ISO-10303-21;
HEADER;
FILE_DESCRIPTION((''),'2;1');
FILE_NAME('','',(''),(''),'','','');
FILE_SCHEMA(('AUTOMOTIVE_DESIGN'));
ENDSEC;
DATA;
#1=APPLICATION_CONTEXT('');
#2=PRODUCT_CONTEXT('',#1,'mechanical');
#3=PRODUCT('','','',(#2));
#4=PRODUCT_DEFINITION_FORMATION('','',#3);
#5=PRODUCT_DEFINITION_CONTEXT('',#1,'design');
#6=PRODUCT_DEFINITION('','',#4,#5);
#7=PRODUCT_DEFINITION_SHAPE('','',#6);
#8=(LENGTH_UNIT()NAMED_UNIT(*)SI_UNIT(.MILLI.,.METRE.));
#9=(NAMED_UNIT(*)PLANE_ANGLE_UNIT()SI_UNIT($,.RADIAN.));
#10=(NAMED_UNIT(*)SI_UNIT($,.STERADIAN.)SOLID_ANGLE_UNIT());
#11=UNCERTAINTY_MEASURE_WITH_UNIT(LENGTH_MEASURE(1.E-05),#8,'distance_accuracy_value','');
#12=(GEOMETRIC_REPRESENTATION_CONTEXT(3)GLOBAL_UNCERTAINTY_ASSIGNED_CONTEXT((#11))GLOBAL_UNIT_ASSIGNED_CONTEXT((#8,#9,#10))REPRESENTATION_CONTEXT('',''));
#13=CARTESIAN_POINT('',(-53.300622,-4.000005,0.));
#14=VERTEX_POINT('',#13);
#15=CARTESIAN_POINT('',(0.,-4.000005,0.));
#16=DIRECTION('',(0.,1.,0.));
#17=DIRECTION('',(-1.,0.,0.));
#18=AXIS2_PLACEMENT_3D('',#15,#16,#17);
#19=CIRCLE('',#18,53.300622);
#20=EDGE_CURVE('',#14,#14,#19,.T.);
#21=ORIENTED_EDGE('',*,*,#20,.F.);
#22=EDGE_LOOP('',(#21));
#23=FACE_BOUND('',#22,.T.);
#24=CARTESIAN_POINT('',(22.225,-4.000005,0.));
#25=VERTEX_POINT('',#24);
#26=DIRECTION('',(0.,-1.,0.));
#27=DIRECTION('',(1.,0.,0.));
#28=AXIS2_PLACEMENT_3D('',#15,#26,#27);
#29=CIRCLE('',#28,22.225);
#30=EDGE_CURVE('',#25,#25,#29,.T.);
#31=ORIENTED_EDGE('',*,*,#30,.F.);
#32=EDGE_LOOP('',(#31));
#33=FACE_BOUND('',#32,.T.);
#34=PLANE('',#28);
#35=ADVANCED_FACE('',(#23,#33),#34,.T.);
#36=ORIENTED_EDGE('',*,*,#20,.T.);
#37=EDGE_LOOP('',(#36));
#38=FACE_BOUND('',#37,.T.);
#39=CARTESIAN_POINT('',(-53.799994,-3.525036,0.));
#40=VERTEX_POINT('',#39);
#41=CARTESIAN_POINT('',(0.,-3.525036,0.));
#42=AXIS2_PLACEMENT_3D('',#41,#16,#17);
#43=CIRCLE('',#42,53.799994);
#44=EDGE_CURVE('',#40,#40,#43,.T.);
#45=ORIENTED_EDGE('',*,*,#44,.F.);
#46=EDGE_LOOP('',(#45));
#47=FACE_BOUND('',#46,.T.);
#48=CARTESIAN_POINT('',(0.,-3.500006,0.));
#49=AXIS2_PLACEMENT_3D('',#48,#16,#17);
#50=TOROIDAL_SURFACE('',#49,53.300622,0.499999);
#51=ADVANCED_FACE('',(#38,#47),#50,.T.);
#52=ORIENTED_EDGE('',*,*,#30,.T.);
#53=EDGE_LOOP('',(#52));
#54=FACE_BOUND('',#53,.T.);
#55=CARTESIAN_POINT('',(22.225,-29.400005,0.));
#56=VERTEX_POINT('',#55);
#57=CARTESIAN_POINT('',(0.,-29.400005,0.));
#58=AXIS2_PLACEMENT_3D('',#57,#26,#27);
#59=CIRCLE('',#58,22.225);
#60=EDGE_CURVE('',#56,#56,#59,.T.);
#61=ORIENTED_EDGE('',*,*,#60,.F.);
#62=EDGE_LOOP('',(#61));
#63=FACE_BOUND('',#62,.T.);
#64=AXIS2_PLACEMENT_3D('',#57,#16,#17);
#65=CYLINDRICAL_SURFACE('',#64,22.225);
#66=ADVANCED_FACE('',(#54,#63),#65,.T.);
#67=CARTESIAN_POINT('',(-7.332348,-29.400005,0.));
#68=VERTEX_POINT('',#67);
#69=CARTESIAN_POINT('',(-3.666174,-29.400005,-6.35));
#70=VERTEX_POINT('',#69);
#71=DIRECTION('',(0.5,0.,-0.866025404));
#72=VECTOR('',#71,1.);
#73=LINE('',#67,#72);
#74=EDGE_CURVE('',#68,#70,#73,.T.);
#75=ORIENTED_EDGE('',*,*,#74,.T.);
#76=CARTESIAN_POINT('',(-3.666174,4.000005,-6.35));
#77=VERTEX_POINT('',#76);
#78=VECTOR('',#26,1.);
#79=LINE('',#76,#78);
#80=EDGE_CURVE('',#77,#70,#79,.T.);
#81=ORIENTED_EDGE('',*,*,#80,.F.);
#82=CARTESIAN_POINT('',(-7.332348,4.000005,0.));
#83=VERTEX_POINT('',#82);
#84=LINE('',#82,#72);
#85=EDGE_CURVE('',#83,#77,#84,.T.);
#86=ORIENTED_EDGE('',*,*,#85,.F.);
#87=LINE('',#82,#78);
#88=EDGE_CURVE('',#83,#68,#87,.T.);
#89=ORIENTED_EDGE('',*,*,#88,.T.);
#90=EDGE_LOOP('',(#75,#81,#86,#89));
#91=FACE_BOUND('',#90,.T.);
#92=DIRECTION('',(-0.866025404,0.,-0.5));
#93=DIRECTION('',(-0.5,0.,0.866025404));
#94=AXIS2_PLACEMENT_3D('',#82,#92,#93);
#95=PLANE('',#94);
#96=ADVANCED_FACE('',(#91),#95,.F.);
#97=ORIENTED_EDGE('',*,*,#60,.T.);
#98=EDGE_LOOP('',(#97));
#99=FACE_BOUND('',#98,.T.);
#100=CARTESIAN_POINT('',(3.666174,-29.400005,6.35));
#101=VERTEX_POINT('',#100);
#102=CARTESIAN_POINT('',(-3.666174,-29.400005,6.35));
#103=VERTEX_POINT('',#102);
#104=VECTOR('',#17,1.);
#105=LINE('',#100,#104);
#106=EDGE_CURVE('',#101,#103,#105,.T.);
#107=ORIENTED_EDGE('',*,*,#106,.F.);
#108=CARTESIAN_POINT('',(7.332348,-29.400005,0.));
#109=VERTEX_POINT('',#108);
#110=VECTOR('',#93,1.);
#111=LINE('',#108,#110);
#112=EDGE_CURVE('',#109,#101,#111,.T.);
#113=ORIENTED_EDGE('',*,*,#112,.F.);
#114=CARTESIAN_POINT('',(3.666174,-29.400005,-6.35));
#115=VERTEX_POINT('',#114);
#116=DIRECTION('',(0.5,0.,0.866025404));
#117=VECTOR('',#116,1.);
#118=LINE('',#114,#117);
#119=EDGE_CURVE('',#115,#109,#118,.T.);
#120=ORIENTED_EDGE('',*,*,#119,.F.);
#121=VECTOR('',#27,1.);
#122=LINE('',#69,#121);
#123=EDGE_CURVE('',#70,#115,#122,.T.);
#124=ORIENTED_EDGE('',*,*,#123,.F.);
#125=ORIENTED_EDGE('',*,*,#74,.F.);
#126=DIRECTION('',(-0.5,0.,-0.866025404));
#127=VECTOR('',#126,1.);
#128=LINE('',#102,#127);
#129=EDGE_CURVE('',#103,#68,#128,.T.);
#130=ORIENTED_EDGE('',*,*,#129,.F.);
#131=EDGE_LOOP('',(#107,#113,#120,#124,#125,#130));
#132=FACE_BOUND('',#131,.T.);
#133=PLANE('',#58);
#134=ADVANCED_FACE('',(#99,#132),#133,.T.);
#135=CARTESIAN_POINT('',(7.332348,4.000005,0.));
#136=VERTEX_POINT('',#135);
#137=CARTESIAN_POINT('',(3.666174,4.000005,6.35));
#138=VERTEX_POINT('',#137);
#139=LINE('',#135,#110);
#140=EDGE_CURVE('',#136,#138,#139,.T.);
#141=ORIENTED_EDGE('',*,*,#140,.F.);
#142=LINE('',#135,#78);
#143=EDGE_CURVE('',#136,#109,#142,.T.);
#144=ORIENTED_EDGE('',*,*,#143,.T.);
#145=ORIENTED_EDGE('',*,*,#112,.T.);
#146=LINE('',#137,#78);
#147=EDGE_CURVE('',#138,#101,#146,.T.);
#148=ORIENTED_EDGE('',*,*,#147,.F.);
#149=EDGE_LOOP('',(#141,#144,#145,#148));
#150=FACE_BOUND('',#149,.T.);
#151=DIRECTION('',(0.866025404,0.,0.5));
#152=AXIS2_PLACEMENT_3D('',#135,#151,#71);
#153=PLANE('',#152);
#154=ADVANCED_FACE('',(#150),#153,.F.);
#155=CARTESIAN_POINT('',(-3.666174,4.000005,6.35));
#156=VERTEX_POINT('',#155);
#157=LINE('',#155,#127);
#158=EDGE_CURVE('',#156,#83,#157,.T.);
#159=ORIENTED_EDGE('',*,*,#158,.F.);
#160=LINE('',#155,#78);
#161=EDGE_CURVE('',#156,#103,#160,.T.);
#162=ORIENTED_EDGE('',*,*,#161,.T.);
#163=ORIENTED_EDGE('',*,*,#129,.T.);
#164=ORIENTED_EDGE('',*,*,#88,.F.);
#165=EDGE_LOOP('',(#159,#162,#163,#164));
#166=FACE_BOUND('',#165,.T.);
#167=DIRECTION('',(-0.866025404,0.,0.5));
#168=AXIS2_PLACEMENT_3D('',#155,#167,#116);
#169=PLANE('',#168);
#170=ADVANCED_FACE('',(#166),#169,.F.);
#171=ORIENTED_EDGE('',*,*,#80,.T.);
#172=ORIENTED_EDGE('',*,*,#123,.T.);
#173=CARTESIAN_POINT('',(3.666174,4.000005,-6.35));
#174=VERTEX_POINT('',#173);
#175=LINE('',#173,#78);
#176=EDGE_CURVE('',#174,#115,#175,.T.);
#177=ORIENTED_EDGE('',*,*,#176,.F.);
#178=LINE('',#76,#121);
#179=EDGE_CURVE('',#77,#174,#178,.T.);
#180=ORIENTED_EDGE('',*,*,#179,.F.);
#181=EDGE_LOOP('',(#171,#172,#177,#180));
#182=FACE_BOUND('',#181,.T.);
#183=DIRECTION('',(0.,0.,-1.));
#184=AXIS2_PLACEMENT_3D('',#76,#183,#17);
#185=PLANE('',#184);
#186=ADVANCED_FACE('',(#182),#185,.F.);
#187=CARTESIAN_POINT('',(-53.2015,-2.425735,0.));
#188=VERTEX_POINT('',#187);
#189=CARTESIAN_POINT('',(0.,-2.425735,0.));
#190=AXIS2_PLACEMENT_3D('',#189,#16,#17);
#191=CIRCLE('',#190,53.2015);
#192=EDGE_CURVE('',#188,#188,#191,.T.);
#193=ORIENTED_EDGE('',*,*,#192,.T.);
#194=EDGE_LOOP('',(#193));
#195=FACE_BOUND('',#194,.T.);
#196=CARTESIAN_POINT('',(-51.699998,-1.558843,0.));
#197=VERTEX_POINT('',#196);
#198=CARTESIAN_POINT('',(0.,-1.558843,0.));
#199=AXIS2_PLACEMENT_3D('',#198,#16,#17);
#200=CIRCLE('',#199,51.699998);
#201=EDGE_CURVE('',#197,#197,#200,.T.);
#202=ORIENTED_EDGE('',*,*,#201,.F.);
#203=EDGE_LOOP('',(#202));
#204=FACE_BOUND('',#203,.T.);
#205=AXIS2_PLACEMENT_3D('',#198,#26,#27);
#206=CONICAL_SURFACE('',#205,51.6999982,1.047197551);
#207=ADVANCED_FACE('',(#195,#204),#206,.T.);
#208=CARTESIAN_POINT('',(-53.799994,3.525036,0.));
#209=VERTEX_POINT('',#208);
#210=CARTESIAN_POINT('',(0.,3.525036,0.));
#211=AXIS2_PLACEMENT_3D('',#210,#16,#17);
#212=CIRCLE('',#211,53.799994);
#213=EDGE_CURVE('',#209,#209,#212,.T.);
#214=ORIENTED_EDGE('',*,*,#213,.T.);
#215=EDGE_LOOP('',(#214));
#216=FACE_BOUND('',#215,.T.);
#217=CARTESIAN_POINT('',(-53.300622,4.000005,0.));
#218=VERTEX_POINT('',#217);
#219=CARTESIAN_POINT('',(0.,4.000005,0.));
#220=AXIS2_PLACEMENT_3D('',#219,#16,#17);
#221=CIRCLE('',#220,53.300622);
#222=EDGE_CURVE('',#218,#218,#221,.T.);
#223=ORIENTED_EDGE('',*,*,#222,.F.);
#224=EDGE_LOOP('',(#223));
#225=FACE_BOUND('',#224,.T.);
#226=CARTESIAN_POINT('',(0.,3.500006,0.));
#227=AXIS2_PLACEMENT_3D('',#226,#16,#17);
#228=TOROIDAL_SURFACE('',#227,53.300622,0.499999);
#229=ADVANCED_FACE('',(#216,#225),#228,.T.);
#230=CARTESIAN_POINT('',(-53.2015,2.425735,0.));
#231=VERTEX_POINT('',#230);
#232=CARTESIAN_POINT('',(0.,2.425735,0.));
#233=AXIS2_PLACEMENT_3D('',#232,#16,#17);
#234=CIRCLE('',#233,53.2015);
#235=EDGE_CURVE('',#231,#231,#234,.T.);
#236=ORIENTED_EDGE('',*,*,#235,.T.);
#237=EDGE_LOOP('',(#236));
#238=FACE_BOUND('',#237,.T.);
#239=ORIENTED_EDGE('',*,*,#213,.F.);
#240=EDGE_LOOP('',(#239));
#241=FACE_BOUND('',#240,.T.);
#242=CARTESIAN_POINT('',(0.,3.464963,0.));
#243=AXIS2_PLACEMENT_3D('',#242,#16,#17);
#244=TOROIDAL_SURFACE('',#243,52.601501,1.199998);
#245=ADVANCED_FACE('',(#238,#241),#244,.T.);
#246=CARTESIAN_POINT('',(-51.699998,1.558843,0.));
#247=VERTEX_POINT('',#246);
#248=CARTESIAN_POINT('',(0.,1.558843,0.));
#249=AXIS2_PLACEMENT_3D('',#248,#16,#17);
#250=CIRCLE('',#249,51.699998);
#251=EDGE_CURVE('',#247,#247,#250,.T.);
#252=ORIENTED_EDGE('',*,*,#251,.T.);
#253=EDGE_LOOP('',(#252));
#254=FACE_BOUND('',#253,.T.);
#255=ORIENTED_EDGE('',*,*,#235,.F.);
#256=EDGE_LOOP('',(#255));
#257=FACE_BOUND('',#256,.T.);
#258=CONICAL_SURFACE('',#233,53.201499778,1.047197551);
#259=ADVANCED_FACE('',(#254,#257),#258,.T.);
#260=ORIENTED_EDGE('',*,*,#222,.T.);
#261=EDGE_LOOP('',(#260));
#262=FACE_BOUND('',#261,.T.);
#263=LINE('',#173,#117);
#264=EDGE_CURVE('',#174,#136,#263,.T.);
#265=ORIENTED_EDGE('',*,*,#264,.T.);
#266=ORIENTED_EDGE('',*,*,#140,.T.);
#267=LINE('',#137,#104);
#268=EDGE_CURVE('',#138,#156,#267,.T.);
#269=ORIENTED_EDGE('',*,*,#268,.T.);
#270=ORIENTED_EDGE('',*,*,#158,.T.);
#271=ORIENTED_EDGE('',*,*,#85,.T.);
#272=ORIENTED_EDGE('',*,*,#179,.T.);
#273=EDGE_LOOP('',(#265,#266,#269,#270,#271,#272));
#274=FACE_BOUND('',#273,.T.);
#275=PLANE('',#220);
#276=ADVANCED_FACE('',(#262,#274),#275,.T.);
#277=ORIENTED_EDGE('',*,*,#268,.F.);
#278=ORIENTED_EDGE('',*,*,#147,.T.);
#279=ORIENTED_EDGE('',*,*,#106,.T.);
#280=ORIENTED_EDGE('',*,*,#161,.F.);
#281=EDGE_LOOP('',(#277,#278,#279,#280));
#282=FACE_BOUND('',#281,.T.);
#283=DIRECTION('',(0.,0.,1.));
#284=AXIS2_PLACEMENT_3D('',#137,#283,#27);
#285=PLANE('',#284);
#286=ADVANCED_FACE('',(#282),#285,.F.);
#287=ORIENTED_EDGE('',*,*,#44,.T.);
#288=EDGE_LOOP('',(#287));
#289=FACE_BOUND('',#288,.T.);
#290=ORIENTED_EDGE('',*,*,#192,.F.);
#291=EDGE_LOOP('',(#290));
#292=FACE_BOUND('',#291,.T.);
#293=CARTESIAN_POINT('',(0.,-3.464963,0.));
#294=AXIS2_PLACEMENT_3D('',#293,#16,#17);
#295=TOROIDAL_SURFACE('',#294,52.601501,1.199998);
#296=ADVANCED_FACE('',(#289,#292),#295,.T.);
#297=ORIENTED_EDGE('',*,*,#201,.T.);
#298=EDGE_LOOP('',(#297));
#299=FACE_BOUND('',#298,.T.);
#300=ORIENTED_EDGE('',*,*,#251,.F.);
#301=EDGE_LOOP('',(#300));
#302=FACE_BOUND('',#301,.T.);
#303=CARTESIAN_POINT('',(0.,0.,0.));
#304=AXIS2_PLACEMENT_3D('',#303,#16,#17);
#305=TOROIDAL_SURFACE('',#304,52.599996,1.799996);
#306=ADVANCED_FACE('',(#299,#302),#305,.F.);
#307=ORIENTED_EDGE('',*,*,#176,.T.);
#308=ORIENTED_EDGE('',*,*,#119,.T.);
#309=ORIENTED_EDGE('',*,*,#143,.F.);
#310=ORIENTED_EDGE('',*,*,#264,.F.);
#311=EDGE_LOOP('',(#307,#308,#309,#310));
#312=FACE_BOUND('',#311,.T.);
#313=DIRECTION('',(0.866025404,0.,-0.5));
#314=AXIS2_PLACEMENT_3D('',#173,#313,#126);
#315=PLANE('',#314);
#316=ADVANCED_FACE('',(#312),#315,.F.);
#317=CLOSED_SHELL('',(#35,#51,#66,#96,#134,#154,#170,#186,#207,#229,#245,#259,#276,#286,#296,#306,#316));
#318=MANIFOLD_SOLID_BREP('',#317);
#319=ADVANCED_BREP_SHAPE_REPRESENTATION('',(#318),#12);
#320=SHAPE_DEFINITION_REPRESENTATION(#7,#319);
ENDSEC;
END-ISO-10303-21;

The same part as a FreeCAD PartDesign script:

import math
import FreeCAD as App
import Part
import Sketcher
Q = App.Units.Quantity

doc = App.newDocument("Part")
body = doc.addObject("PartDesign::Body", "Body")

sketch1 = body.newObject("Sketcher::SketchObject", "Sketch")
sketch1.AttachmentSupport = (doc.getObject("XY_Plane"), [""])
sketch1.MapMode = "FlatFace"
sketch1.addGeometry([
    Part.LineSegment(App.Vector(0, -4, 0), App.Vector(0, 4, 0)),
    Part.LineSegment(App.Vector(0, 4, 0), App.Vector(-53.3, 4, 0)),
    Part.ArcOfCircle(Part.Circle(App.Vector(-53.3, 3.5, 0), App.Vector(0, 0, 1), 0.5), math.radians(90), math.radians(177)),
    Part.ArcOfCircle(Part.Circle(App.Vector(-52.6, 3.46, 0), App.Vector(0, 0, 1), 1.2), math.radians(177), math.radians(240)),
    Part.LineSegment(App.Vector(-53.2, 2.43, 0), App.Vector(-51.7, 1.56, 0)),
    Part.ArcOfCircle(Part.Circle(App.Vector(-52.6, 0, 0), App.Vector(0, 0, 1), 1.8), math.radians(-60), math.radians(60)),
    Part.LineSegment(App.Vector(-51.7, -1.56, 0), App.Vector(-53.2, -2.43, 0)),
    Part.ArcOfCircle(Part.Circle(App.Vector(-52.6, -3.46, 0), App.Vector(0, 0, 1), 1.2), math.radians(120), math.radians(183)),
    Part.ArcOfCircle(Part.Circle(App.Vector(-53.3, -3.5, 0), App.Vector(0, 0, 1), 0.5), math.radians(-177), math.radians(-90)),
    Part.LineSegment(App.Vector(-53.3, -4, 0), App.Vector(0, -4, 0)),
], False)
sketch1.addConstraint([
    Sketcher.Constraint("Coincident", 0, 2, 1, 1),
    Sketcher.Constraint("Tangent", 1, 2, 2, 1),
    Sketcher.Constraint("Tangent", 2, 2, 3, 1),
    Sketcher.Constraint("Tangent", 3, 2, 4, 1),
    Sketcher.Constraint("Tangent", 4, 2, 5, 2),
    Sketcher.Constraint("Tangent", 5, 1, 6, 1),
    Sketcher.Constraint("Tangent", 6, 2, 7, 1),
    Sketcher.Constraint("Tangent", 7, 2, 8, 1),
    Sketcher.Constraint("Tangent", 8, 2, 9, 1),
    Sketcher.Constraint("Coincident", 9, 2, 0, 1),
    Sketcher.Constraint("Vertical", 0),
    Sketcher.Constraint("Horizontal", 1),
    Sketcher.Constraint("Horizontal", 9),
    Sketcher.Constraint("Equal", 3, 7),
    Sketcher.Constraint("Equal", 2, 8),
    Sketcher.Constraint("Symmetric", 0, 2, 9, 2, -1, 1),
    Sketcher.Constraint("Symmetric", 3, 3, 7, 3, -1),
    Sketcher.Constraint("PointOnObject", 5, 3, -1),
    Sketcher.Constraint("Angle", 4, Q("-30 deg")),
    Sketcher.Constraint("Radius", 2, Q("0.499999 mm")),
    Sketcher.Constraint("Radius", 3, Q("1.199998 mm")),
    Sketcher.Constraint("Radius", 5, Q("1.799996 mm")),
    Sketcher.Constraint("DistanceX", 1, 2, 1, 1, Q("53.300622 mm")),
    Sketcher.Constraint("DistanceY", 0, 1, 0, 2, Q("8.000009 mm")),
    Sketcher.Constraint("DistanceX", 3, 3, -1, 1, Q("52.601501 mm")),
])
revolution = body.newObject("PartDesign::Revolution", "Revolution")
revolution.Profile = sketch1
revolution.ReferenceAxis = (sketch1, ["V_Axis"])
revolution.Angle = 360

sketch2 = body.newObject("Sketcher::SketchObject", "Sketch001")
sketch2.AttachmentSupport = (doc.getObject("XZ_Plane"), [""])
sketch2.MapMode = "FlatFace"
sketch2.AttachmentOffset = App.Placement(App.Vector(0, 0, 4.000005), App.Rotation())
sketch2.addGeometry([
    Part.LineSegment(App.Vector(7, 0, 0), App.Vector(4, 6, 0)),
    Part.LineSegment(App.Vector(4, 6, 0), App.Vector(-4, 6, 0)),
    Part.LineSegment(App.Vector(-4, 6, 0), App.Vector(-7, 0, 0)),
    Part.LineSegment(App.Vector(-7, 0, 0), App.Vector(-4, -6, 0)),
    Part.LineSegment(App.Vector(-4, -6, 0), App.Vector(4, -6, 0)),
    Part.LineSegment(App.Vector(4, -6, 0), App.Vector(7, 0, 0)),
], False)
sketch2.addConstraint([
    Sketcher.Constraint("Coincident", 0, 2, 1, 1),
    Sketcher.Constraint("Coincident", 1, 2, 2, 1),
    Sketcher.Constraint("Coincident", 2, 2, 3, 1),
    Sketcher.Constraint("Coincident", 3, 2, 4, 1),
    Sketcher.Constraint("Coincident", 4, 2, 5, 1),
    Sketcher.Constraint("Coincident", 5, 2, 0, 1),
    Sketcher.Constraint("Horizontal", 1),
    Sketcher.Constraint("Horizontal", 4),
    Sketcher.Constraint("Symmetric", 0, 2, 3, 2, -1, 1),
    Sketcher.Constraint("Symmetric", 2, 2, 5, 2, -1, 1),
    Sketcher.Constraint("PointOnObject", 2, 2, -1),
    Sketcher.Constraint("Parallel", 2, 5),
    Sketcher.Constraint("Vertical", 1, 2, 3, 2),
    Sketcher.Constraint("Angle", 0, Q("120 deg")),
    Sketcher.Constraint("DistanceY", 3, 2, 1, 2, Q("0.5 in")),
    Sketcher.Constraint("DistanceX", 1, 2, 1, 1, Q("7.332348 mm")),
])
pocket1 = body.newObject("PartDesign::Pocket", "Pocket")
pocket1.Profile = sketch2
pocket1.Type = "ThroughAll"

sketch3 = body.newObject("Sketcher::SketchObject", "Sketch002")
sketch3.AttachmentSupport = (doc.getObject("XZ_Plane"), [""])
sketch3.MapMode = "FlatFace"
sketch3.AttachmentOffset = App.Placement(App.Vector(0, 0, 4.000005), App.Rotation())
sketch3.addGeometry([
    Part.Circle(App.Vector(0, 0, 0), App.Vector(0, 0, 1), 22),
    Part.LineSegment(App.Vector(-7, 0, 0), App.Vector(-4, 6, 0)),
    Part.LineSegment(App.Vector(-4, 6, 0), App.Vector(4, 6, 0)),
    Part.LineSegment(App.Vector(4, 6, 0), App.Vector(7, 0, 0)),
    Part.LineSegment(App.Vector(7, 0, 0), App.Vector(4, -6, 0)),
    Part.LineSegment(App.Vector(4, -6, 0), App.Vector(-4, -6, 0)),
    Part.LineSegment(App.Vector(-4, -6, 0), App.Vector(-7, 0, 0)),
], False)
sketch3.addConstraint([
    Sketcher.Constraint("Coincident", 1, 2, 2, 1),
    Sketcher.Constraint("Coincident", 2, 2, 3, 1),
    Sketcher.Constraint("Coincident", 3, 2, 4, 1),
    Sketcher.Constraint("Coincident", 4, 2, 5, 1),
    Sketcher.Constraint("Coincident", 5, 2, 6, 1),
    Sketcher.Constraint("Coincident", 6, 2, 1, 1),
    Sketcher.Constraint("Horizontal", 2),
    Sketcher.Constraint("Horizontal", 5),
    Sketcher.Constraint("Coincident", 0, 3, -1, 1),
    Sketcher.Constraint("Symmetric", 1, 2, 4, 2, -1, 1),
    Sketcher.Constraint("Symmetric", 3, 2, 6, 2, -1, 1),
    Sketcher.Constraint("PointOnObject", 3, 2, -1),
    Sketcher.Constraint("Parallel", 3, 6),
    Sketcher.Constraint("Vertical", 2, 2, 4, 2),
    Sketcher.Constraint("Diameter", 0, Q("1.75 in")),
    Sketcher.Constraint("Angle", 1, Q("60 deg")),
    Sketcher.Constraint("DistanceY", 4, 2, 2, 2, Q("0.5 in")),
    Sketcher.Constraint("DistanceX", 2, 1, 2, 2, Q("7.332348 mm")),
])
pad1 = body.newObject("PartDesign::Pad", "Pad")
pad1.Profile = sketch3
pad1.Length = Q("1 in")

doc.recompute()
